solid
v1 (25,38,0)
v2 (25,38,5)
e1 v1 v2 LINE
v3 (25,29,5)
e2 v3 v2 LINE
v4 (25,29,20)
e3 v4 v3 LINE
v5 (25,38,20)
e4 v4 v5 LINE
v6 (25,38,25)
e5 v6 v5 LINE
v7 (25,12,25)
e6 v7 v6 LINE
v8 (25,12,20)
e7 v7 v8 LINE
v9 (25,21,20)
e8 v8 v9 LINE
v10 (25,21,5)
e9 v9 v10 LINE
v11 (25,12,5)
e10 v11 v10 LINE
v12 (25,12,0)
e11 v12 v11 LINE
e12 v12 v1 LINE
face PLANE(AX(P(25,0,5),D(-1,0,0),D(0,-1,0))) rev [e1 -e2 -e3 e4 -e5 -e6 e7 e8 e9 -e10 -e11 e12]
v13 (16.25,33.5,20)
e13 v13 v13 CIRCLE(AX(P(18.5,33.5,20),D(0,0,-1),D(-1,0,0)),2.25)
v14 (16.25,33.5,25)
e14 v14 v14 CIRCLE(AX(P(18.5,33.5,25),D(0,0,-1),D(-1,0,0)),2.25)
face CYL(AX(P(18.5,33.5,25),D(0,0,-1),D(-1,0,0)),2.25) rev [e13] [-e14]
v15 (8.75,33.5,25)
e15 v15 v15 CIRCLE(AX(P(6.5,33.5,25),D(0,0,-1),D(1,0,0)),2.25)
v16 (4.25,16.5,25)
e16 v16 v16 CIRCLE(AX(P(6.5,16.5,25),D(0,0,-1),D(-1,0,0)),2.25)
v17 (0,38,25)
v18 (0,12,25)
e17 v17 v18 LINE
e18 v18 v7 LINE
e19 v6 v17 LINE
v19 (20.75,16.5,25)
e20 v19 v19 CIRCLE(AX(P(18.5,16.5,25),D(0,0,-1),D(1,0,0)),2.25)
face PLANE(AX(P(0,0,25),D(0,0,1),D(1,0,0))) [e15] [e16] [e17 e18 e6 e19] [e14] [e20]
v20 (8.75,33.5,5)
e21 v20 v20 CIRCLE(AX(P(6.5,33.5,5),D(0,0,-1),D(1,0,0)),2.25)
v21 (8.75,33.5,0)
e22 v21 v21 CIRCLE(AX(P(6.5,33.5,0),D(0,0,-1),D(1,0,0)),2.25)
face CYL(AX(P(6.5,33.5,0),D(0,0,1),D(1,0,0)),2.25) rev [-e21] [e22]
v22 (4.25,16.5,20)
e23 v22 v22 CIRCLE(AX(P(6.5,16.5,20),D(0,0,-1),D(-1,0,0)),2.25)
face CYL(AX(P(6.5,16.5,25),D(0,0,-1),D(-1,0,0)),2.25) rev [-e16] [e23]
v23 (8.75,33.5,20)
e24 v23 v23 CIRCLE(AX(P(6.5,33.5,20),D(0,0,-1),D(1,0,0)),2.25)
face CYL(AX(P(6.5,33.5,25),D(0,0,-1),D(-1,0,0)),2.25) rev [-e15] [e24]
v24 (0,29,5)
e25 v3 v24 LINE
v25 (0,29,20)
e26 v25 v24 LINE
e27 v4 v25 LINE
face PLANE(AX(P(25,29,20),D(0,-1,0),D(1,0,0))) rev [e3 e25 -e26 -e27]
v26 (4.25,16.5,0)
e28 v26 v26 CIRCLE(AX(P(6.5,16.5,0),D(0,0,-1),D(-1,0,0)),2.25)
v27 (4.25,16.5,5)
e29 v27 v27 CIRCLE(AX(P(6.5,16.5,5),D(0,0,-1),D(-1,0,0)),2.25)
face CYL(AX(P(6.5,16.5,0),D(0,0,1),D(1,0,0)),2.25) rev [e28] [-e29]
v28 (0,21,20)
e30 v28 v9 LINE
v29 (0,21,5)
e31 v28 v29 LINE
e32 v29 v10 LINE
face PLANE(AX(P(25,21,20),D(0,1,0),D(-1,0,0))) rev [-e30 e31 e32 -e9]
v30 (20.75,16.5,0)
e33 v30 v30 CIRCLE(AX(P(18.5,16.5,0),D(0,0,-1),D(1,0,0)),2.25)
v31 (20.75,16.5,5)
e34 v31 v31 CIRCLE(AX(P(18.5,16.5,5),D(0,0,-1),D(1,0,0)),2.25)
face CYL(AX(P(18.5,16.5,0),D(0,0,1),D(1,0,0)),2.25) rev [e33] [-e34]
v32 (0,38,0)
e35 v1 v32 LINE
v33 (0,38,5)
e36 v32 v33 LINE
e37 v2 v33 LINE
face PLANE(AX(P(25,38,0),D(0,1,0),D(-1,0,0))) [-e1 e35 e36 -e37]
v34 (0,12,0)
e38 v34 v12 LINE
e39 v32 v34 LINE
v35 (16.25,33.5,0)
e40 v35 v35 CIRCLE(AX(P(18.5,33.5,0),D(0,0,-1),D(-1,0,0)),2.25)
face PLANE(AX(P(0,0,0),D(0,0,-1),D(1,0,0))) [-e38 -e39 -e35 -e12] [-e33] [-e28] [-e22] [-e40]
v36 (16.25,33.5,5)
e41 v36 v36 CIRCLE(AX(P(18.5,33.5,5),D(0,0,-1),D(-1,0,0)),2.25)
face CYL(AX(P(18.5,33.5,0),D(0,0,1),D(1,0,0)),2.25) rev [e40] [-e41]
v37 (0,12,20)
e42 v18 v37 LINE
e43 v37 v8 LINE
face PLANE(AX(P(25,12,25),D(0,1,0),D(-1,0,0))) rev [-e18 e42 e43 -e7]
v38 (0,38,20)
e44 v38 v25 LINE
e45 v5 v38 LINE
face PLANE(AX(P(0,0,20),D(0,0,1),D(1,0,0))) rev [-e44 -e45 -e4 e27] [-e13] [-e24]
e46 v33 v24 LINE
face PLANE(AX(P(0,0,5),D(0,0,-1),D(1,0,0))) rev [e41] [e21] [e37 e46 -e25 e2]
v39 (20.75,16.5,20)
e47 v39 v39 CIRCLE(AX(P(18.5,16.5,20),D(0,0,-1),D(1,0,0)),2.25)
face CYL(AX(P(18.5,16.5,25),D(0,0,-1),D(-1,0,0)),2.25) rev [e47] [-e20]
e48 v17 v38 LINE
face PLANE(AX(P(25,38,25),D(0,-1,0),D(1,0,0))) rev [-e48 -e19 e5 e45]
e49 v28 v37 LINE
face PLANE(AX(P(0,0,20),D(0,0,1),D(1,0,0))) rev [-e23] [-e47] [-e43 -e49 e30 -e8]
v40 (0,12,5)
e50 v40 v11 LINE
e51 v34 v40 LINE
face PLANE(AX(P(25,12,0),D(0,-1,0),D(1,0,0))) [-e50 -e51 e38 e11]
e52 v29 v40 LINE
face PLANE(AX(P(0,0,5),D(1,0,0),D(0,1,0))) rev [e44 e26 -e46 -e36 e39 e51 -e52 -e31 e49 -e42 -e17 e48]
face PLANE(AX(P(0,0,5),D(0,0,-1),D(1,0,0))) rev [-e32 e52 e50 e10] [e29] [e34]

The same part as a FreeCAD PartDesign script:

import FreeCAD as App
import Part
import Sketcher
from FreeCAD import Vector
Q = App.Units.Quantity

doc = App.newDocument("Part")
params = doc.addObject("Spreadsheet::Sheet", "Params")
for row, (alias, value) in enumerate([
    ("sketch1_width", "25 mm"),
    ("sketch1_height", "50 mm"),
    ("pad1_length", "5 mm"),
    ("sketch2_diameter", "4.5 mm"),
    ("pocket1_length", "20 mm"),
    ("sketch3_width", "25 mm"),
    ("sketch3_height", "8 mm"),
    ("pad2_length", "15 mm"),
    ("sketch4_width", "25 mm"),
    ("sketch4_height", "26 mm"),
    ("pad3_length", "5 mm"),
    ("sketch5_diameter", "4.5 mm"),
    ("pocket2_length", "5 mm"),
    ("sketch6_width", "25 mm"),
    ("sketch6_height", "50 mm"),
    ("pocket3_length", "5 mm"),
], start=1):
    params.set(f"A{row}", alias)
    params.set(f"B{row}", "=" + value)
    params.setAlias(f"B{row}", alias)

body = doc.addObject("PartDesign::Body", "Body")

# Sketch on XY plane
sketch1 = doc.addObject("Sketcher::SketchObject", "Sketch")
body.addObject(sketch1)
sketch1.AttachmentSupport = (doc.XY_Plane, [""])
sketch1.MapMode = "FlatFace"
sketch1.addGeometry([
    Part.LineSegment(Vector(0, 50, 0), Vector(0, 0, 0)),
    Part.LineSegment(Vector(0, 0, 0), Vector(25, 0, 0)),
    Part.LineSegment(Vector(25, 0, 0), Vector(25, 50, 0)),
    Part.LineSegment(Vector(25, 50, 0), Vector(0, 50, 0)),
], False)
sketch1.addConstraint([
    Sketcher.Constraint("Coincident", 0, 2, 1, 1),
    Sketcher.Constraint("Coincident", 1, 2, 2, 1),
    Sketcher.Constraint("Coincident", 2, 2, 3, 1),
    Sketcher.Constraint("Coincident", 3, 2, 0, 1),
    Sketcher.Constraint("Vertical", 0),
    Sketcher.Constraint("Horizontal", 1),
    Sketcher.Constraint("Vertical", 2),
    Sketcher.Constraint("Horizontal", 3),
    Sketcher.Constraint("Coincident", 0, 2, -1, 1),
    Sketcher.Constraint("DistanceX", 1, 1, 1, 2, Q("25 mm")),
    Sketcher.Constraint("DistanceY", 0, 2, 0, 1, Q("50 mm")),
])
sketch1.setExpression("Constraints[9]", "Params.sketch1_width")
sketch1.setExpression("Constraints[10]", "Params.sketch1_height")
pad1 = doc.addObject("PartDesign::Pad", "Pad")
body.addObject(pad1)
pad1.Profile = sketch1
pad1.setExpression("Length", "Params.pad1_length")

# Sketch on XY plane
sketch2 = doc.addObject("Sketcher::SketchObject", "Sketch001")
body.addObject(sketch2)
sketch2.AttachmentSupport = (doc.XY_Plane, [""])
sketch2.MapMode = "FlatFace"
sketch2.AttachmentOffset = App.Placement(Vector(0, 0, 5), App.Rotation())
sketch2.addGeometry([
    Part.Circle(Vector(12.5, 7.5, 0), Vector(0, 0, 1), 2.25),
    Part.Circle(Vector(12.5, 42.5, 0), Vector(0, 0, 1), 2.25),
], False)
sketch2.addConstraint([
    Sketcher.Constraint("Equal", 0, 1),
    Sketcher.Constraint("Vertical", 0, 3, 1, 3),
    Sketcher.Constraint("Diameter", 0, Q("4.5 mm")),
    Sketcher.Constraint("DistanceY", 0, 3, 1, 3, Q("35 mm")),
    Sketcher.Constraint("DistanceX", -1, 1, 0, 3, Q("12.5 mm")),
    Sketcher.Constraint("DistanceY", -1, 1, 0, 3, Q("7.5 mm")),
])
sketch2.setExpression("Constraints[2]", "Params.sketch2_diameter")
pocket1 = doc.addObject("PartDesign::Pocket", "Pocket")
body.addObject(pocket1)
pocket1.Profile = sketch2
pocket1.setExpression("Length", "Params.pocket1_length")

# Sketch on XY plane
sketch3 = doc.addObject("Sketcher::SketchObject", "Sketch002")
body.addObject(sketch3)
sketch3.AttachmentSupport = (doc.XY_Plane, [""])
sketch3.MapMode = "FlatFace"
sketch3.AttachmentOffset = App.Placement(Vector(0, 0, 5), App.Rotation())
sketch3.addGeometry([
    Part.LineSegment(Vector(0, 29, 0), Vector(0, 21, 0)),
    Part.LineSegment(Vector(0, 21, 0), Vector(25, 21, 0)),
    Part.LineSegment(Vector(25, 21, 0), Vector(25, 29, 0)),
    Part.LineSegment(Vector(25, 29, 0), Vector(0, 29, 0)),
], False)
sketch3.addConstraint([
    Sketcher.Constraint("Coincident", 0, 2, 1, 1),
    Sketcher.Constraint("Coincident", 1, 2, 2, 1),
    Sketcher.Constraint("Coincident", 2, 2, 3, 1),
    Sketcher.Constraint("Coincident", 3, 2, 0, 1),
    Sketcher.Constraint("Vertical", 0),
    Sketcher.Constraint("Horizontal", 1),
    Sketcher.Constraint("Vertical", 2),
    Sketcher.Constraint("Horizontal", 3),
    Sketcher.Constraint("PointOnObject", 0, 2, -2),
    Sketcher.Constraint("DistanceX", 1, 1, 1, 2, Q("25 mm")),
    Sketcher.Constraint("DistanceY", 0, 2, 0, 1, Q("8 mm")),
    Sketcher.Constraint("DistanceY", -1, 1, 0, 2, Q("21 mm")),
])
sketch3.setExpression("Constraints[9]", "Params.sketch3_width")
sketch3.setExpression("Constraints[10]", "Params.sketch3_height")
pad2 = doc.addObject("PartDesign::Pad", "Pad001")
body.addObject(pad2)
pad2.Profile = sketch3
pad2.setExpression("Length", "Params.pad2_length")

# Sketch on XY plane
sketch4 = doc.addObject("Sketcher::SketchObject", "Sketch003")
body.addObject(sketch4)
sketch4.AttachmentSupport = (doc.XY_Plane, [""])
sketch4.MapMode = "FlatFace"
sketch4.AttachmentOffset = App.Placement(Vector(0, 0, 20), App.Rotation())
sketch4.addGeometry([
    Part.LineSegment(Vector(0, 38, 0), Vector(0, 12, 0)),
    Part.LineSegment(Vector(0, 12, 0), Vector(25, 12, 0)),
    Part.LineSegment(Vector(25, 12, 0), Vector(25, 38, 0)),
    Part.LineSegment(Vector(25, 38, 0), Vector(0, 38, 0)),
], False)
sketch4.addConstraint([
    Sketcher.Constraint("Coincident", 0, 2, 1, 1),
    Sketcher.Constraint("Coincident", 1, 2, 2, 1),
    Sketcher.Constraint("Coincident", 2, 2, 3, 1),
    Sketcher.Constraint("Coincident", 3, 2, 0, 1),
    Sketcher.Constraint("Vertical", 0),
    Sketcher.Constraint("Horizontal", 1),
    Sketcher.Constraint("Vertical", 2),
    Sketcher.Constraint("Horizontal", 3),
    Sketcher.Constraint("PointOnObject", 0, 2, -2),
    Sketcher.Constraint("DistanceX", 1, 1, 1, 2, Q("25 mm")),
    Sketcher.Constraint("DistanceY", 0, 2, 0, 1, Q("26 mm")),
    Sketcher.Constraint("DistanceY", -1, 1, 0, 2, Q("12 mm")),
])
sketch4.setExpression("Constraints[9]", "Params.sketch4_width")
sketch4.setExpression("Constraints[10]", "Params.sketch4_height")
pad3 = doc.addObject("PartDesign::Pad", "Pad002")
body.addObject(pad3)
pad3.Profile = sketch4
pad3.setExpression("Length", "Params.pad3_length")

# Sketch on XY plane
sketch5 = doc.addObject("Sketcher::SketchObject", "Sketch004")
body.addObject(sketch5)
sketch5.AttachmentSupport = (doc.XY_Plane, [""])
sketch5.MapMode = "FlatFace"
sketch5.AttachmentOffset = App.Placement(Vector(0, 0, 20), App.Rotation())
sketch5.addGeometry([
    Part.Circle(Vector(18.5, 33.5, 0), Vector(0, 0, 1), 2.25),
    Part.Circle(Vector(6.5, 33.5, 0), Vector(0, 0, 1), 2.25),
    Part.Circle(Vector(6.5, 16.5, 0), Vector(0, 0, 1), 2.25),
    Part.Circle(Vector(18.5, 16.5, 0), Vector(0, 0, 1), 2.25),
], False)
sketch5.addConstraint([
    Sketcher.Constraint("Equal", 0, 1),
    Sketcher.Constraint("Equal", 1, 2),
    Sketcher.Constraint("Equal", 2, 3),
    Sketcher.Constraint("Horizontal", 0, 3, 1, 3),
    Sketcher.Constraint("Horizontal", 2, 3, 3, 3),
    Sketcher.Constraint("Vertical", 1, 3, 2, 3),
    Sketcher.Constraint("Vertical", 0, 3, 3, 3),
    Sketcher.Constraint("Diameter", 0, Q("4.5 mm")),
    Sketcher.Constraint("DistanceX", 1, 3, 0, 3, Q("12 mm")),
    Sketcher.Constraint("DistanceY", 2, 3, 1, 3, Q("17 mm")),
    Sketcher.Constraint("DistanceX", -1, 1, 0, 3, Q("18.5 mm")),
    Sketcher.Constraint("DistanceY", -1, 1, 0, 3, Q("33.5 mm")),
])
sketch5.setExpression("Constraints[7]", "Params.sketch5_diameter")
pocket2 = doc.addObject("PartDesign::Pocket", "Pocket001")
body.addObject(pocket2)
pocket2.Profile = sketch5
pocket2.setExpression("Length", "Params.pocket2_length")
pocket2.Reversed = True

# Sketch on XY plane
sketch6 = doc.addObject("Sketcher::SketchObject", "Sketch005")
body.addObject(sketch6)
sketch6.AttachmentSupport = (doc.XY_Plane, [""])
sketch6.MapMode = "FlatFace"
sketch6.addGeometry([
    Part.LineSegment(Vector(25, 50, 0), Vector(25, 0, 0)),
    Part.LineSegment(Vector(25, 0, 0), Vector(0, 0, 0)),
    Part.LineSegment(Vector(0, 0, 0), Vector(0, 50, 0)),
    Part.LineSegment(Vector(0, 50, 0), Vector(25, 50, 0)),
], False)
sketch6.addConstraint([
    Sketcher.Constraint("Coincident", 0, 2, 1, 1),
    Sketcher.Constraint("Coincident", 1, 2, 2, 1),
    Sketcher.Constraint("Coincident", 2, 2, 3, 1),
    Sketcher.Constraint("Coincident", 3, 2, 0, 1),
    Sketcher.Constraint("Vertical", 0),
    Sketcher.Constraint("Horizontal", 1),
    Sketcher.Constraint("Vertical", 2),
    Sketcher.Constraint("Horizontal", 3),
    Sketcher.Constraint("Coincident", 1, 2, -1, 1),
    Sketcher.Constraint("DistanceX", 1, 2, 1, 1, Q("25 mm")),
    Sketcher.Constraint("DistanceY", 0, 2, 0, 1, Q("50 mm")),
])
sketch6.setExpression("Constraints[9]", "Params.sketch6_width")
sketch6.setExpression("Constraints[10]", "Params.sketch6_height")
pocket3 = doc.addObject("PartDesign::Pocket", "Pocket002")
body.addObject(pocket3)
pocket3.Profile = sketch6
pocket3.setExpression("Length", "Params.pocket3_length")
pocket3.Reversed = True
doc.recompute()

datumplane = doc.addObject("PartDesign::Plane", "DatumPlane")
body.addObject(datumplane)
datumplane.AttachmentSupport = (doc.XY_Plane, [""])
datumplane.MapMode = "FlatFace"
datumplane.AttachmentOffset = App.Placement(Vector(0, 0, 12.5), App.Rotation())
mirrored = doc.addObject("PartDesign::Mirrored", "Mirrored")
body.addObject(mirrored)
mirrored.Originals = [pad3, pocket2]
mirrored.MirrorPlane = (datumplane, [""])
body.Tip = mirrored

doc.recompute()
